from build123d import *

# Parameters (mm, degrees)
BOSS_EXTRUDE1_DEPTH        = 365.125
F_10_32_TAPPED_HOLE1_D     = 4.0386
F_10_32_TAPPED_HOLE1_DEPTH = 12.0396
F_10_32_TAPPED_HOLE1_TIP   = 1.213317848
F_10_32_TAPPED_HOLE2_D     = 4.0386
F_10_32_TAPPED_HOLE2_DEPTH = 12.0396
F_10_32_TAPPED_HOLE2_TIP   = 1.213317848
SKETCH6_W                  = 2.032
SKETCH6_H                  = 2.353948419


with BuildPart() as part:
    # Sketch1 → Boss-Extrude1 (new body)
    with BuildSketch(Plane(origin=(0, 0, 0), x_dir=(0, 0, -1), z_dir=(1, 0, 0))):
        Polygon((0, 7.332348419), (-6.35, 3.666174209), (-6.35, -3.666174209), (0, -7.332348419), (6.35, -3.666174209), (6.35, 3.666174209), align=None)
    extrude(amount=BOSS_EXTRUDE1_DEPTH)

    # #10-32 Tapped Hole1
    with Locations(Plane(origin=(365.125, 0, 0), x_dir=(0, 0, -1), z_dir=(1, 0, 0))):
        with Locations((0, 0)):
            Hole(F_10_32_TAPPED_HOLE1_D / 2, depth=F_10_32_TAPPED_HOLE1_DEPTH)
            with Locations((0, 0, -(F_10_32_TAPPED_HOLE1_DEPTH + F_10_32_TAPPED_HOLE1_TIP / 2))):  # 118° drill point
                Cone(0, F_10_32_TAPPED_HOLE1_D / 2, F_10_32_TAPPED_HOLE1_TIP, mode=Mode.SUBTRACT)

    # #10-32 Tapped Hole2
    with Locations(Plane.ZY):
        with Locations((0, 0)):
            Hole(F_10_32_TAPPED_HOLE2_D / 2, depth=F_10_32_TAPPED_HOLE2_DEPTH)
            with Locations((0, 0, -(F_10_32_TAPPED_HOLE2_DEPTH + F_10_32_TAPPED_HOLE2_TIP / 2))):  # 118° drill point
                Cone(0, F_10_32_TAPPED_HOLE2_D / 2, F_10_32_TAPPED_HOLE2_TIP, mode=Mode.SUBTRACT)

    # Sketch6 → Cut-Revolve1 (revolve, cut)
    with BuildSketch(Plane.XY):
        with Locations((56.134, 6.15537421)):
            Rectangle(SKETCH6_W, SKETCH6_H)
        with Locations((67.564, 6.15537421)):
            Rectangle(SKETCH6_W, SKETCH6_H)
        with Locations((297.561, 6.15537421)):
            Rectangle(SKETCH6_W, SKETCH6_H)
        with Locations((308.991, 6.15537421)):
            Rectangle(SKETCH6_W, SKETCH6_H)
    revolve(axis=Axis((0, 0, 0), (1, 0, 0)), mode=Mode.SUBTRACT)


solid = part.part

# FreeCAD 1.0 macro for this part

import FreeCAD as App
import Part
import Sketcher

V = App.Vector
Q = App.Units.Quantity

doc = App.newDocument("Part")
body = doc.addObject("PartDesign::Body", "Body")

# Sketch on YZ plane
sketch1 = body.newObject("Sketcher::SketchObject", "Sketch")
sketch1.AttachmentSupport = (doc.getObject("YZ_Plane"), [""])
sketch1.MapMode = "FlatFace"
sketch1.addGeometry(Part.LineSegment(V(7, 0, 0), V(4, 6, 0)), False)
sketch1.addGeometry(Part.LineSegment(V(4, 6, 0), V(-4, 6, 0)), False)
sketch1.addGeometry(Part.LineSegment(V(-4, 6, 0), V(-7, 0, 0)), False)
sketch1.addGeometry(Part.LineSegment(V(-7, 0, 0), V(-4, -6, 0)), False)
sketch1.addGeometry(Part.LineSegment(V(-4, -6, 0), V(4, -6, 0)), False)
sketch1.addGeometry(Part.LineSegment(V(4, -6, 0), V(7, 0, 0)), False)
sketch1.addConstraint(Sketcher.Constraint("Coincident", 0, 2, 1, 1))
sketch1.addConstraint(Sketcher.Constraint("Coincident", 1, 2, 2, 1))
sketch1.addConstraint(Sketcher.Constraint("Coincident", 2, 2, 3, 1))
sketch1.addConstraint(Sketcher.Constraint("Coincident", 3, 2, 4, 1))
sketch1.addConstraint(Sketcher.Constraint("Coincident", 4, 2, 5, 1))
sketch1.addConstraint(Sketcher.Constraint("Coincident", 5, 2, 0, 1))
sketch1.addConstraint(Sketcher.Constraint("Horizontal", 1))
sketch1.addConstraint(Sketcher.Constraint("Horizontal", 4))
sketch1.addConstraint(Sketcher.Constraint("Symmetric", 0, 2, 3, 2, -1, 1))
sketch1.addConstraint(Sketcher.Constraint("Symmetric", 2, 2, 5, 2, -1, 1))
sketch1.addConstraint(Sketcher.Constraint("PointOnObject", 2, 2, -1))
sketch1.addConstraint(Sketcher.Constraint("Parallel", 2, 5))
sketch1.addConstraint(Sketcher.Constraint("Vertical", 1, 2, 3, 2))
sketch1.addConstraint(Sketcher.Constraint("Angle", 0, Q("120 deg")))
sketch1.addConstraint(Sketcher.Constraint("DistanceY", 3, 2, 1, 2, Q("0.5 in")))
sketch1.addConstraint(Sketcher.Constraint("DistanceX", 1, 2, 1, 1, 7.332348))
pad1 = body.newObject("PartDesign::Pad", "Pad")
pad1.Profile = sketch1
pad1.Length = Q("14.375 in")

# Sketch on YZ plane
sketch2 = body.newObject("Sketcher::SketchObject", "Sketch001")
sketch2.AttachmentSupport = (doc.getObject("YZ_Plane"), [""])
sketch2.MapMode = "FlatFace"
sketch2.AttachmentOffset = App.Placement(V(0, 0, 14.375 * 25.4), App.Rotation())
sketch2.addGeometry(Part.Circle(V(0, 0, 0), V(0, 0, 1), 2), False)
sketch2.addConstraint(Sketcher.Constraint("Coincident", 0, 3, -1, 1))
sketch2.addConstraint(Sketcher.Constraint("Diameter", 0, Q("0.159 in")))
doc.recompute()
hole = body.newObject("PartDesign::Hole", "Hole")
hole.Profile = sketch2
hole.ThreadType = "None"
hole.Diameter = Q("0.159 in")
hole.DepthType = "Dimension"
hole.Depth = Q("0.474 in")
hole.DrillPoint = "Angled"
hole.DrillPointAngle = 118

# Sketch on YZ plane
sketch3 = body.newObject("Sketcher::SketchObject", "Sketch002")
sketch3.AttachmentSupport = (doc.getObject("YZ_Plane"), [""])
sketch3.MapMode = "FlatFace"
sketch3.addGeometry(Part.Circle(V(0, 0, 0), V(0, 0, 1), 2), False)
sketch3.addConstraint(Sketcher.Constraint("Coincident", 0, 3, -1, 1))
sketch3.addConstraint(Sketcher.Constraint("Diameter", 0, Q("0.159 in")))
doc.recompute()
hole2 = body.newObject("PartDesign::Hole", "Hole001")
hole2.Profile = sketch3
hole2.ThreadType = "None"
hole2.Diameter = Q("0.159 in")
hole2.DepthType = "Dimension"
hole2.Depth = Q("0.474 in")
hole2.DrillPoint = "Angled"
hole2.DrillPointAngle = 118
hole2.Reversed = True

# Sketch on XY plane
sketch4 = body.newObject("Sketcher::SketchObject", "Sketch003")
sketch4.AttachmentSupport = (doc.getObject("XY_Plane"), [""])
sketch4.MapMode = "FlatFace"
sketch4.addGeometry(Part.LineSegment(V(55.1, 7.3, 0), V(55.1, 5, 0)), False)
sketch4.addGeometry(Part.LineSegment(V(55.1, 5, 0), V(57.1, 5, 0)), False)
sketch4.addGeometry(Part.LineSegment(V(57.1, 5, 0), V(57.1, 7.3, 0)), False)
sketch4.addGeometry(Part.LineSegment(V(57.1, 7.3, 0), V(55.1, 7.3, 0)), False)
sketch4.addGeometry(Part.LineSegment(V(66.5, 7.3, 0), V(66.5, 5, 0)), False)
sketch4.addGeometry(Part.LineSegment(V(66.5, 5, 0), V(68.6, 5, 0)), False)
sketch4.addGeometry(Part.LineSegment(V(68.6, 5, 0), V(68.6, 7.3, 0)), False)
sketch4.addGeometry(Part.LineSegment(V(68.6, 7.3, 0), V(66.5, 7.3, 0)), False)
sketch4.addGeometry(Part.LineSegment(V(296.5, 7.3, 0), V(296.5, 5, 0)), False)
sketch4.addGeometry(Part.LineSegment(V(296.5, 5, 0), V(298.6, 5, 0)), False)
sketch4.addGeometry(Part.LineSegment(V(298.6, 5, 0), V(298.6, 7.3, 0)), False)
sketch4.addGeometry(Part.LineSegment(V(298.6, 7.3, 0), V(296.5, 7.3, 0)), False)
sketch4.addGeometry(Part.LineSegment(V(308, 7.3, 0), V(308, 5, 0)), False)
sketch4.addGeometry(Part.LineSegment(V(308, 5, 0), V(310, 5, 0)), False)
sketch4.addGeometry(Part.LineSegment(V(310, 5, 0), V(310, 7.3, 0)), False)
sketch4.addGeometry(Part.LineSegment(V(310, 7.3, 0), V(308, 7.3, 0)), False)
sketch4.addConstraint(Sketcher.Constraint("Coincident", 0, 2, 1, 1))
sketch4.addConstraint(Sketcher.Constraint("Coincident", 1, 2, 2, 1))
sketch4.addConstraint(Sketcher.Constraint("Coincident", 2, 2, 3, 1))
sketch4.addConstraint(Sketcher.Constraint("Coincident", 3, 2, 0, 1))
sketch4.addConstraint(Sketcher.Constraint("Coincident", 4, 2, 5, 1))
sketch4.addConstraint(Sketcher.Constraint("Coincident", 5, 2, 6, 1))
sketch4.addConstraint(Sketcher.Constraint("Coincident", 6, 2, 7, 1))
sketch4.addConstraint(Sketcher.Constraint("Coincident", 7, 2, 4, 1))
sketch4.addConstraint(Sketcher.Constraint("Coincident", 8, 2, 9, 1))
sketch4.addConstraint(Sketcher.Constraint("Coincident", 9, 2, 10, 1))
sketch4.addConstraint(Sketcher.Constraint("Coincident", 10, 2, 11, 1))
sketch4.addConstraint(Sketcher.Constraint("Coincident", 11, 2, 8, 1))
sketch4.addConstraint(Sketcher.Constraint("Coincident", 12, 2, 13, 1))
sketch4.addConstraint(Sketcher.Constraint("Coincident", 13, 2, 14, 1))
sketch4.addConstraint(Sketcher.Constraint("Coincident", 14, 2, 15, 1))
sketch4.addConstraint(Sketcher.Constraint("Coincident", 15, 2, 12, 1))
sketch4.addConstraint(Sketcher.Constraint("Vertical", 0))
sketch4.addConstraint(Sketcher.Constraint("Horizontal", 1))
sketch4.addConstraint(Sketcher.Constraint("Vertical", 2))
sketch4.addConstraint(Sketcher.Constraint("Horizontal", 3))
sketch4.addConstraint(Sketcher.Constraint("Vertical", 4))
sketch4.addConstraint(Sketcher.Constraint("Horizontal", 5))
sketch4.addConstraint(Sketcher.Constraint("Vertical", 6))
sketch4.addConstraint(Sketcher.Constraint("Horizontal", 7))
sketch4.addConstraint(Sketcher.Constraint("Vertical", 8))
sketch4.addConstraint(Sketcher.Constraint("Horizontal", 9))
sketch4.addConstraint(Sketcher.Constraint("Vertical", 10))
sketch4.addConstraint(Sketcher.Constraint("Horizontal", 11))
sketch4.addConstraint(Sketcher.Constraint("Vertical", 12))
sketch4.addConstraint(Sketcher.Constraint("Horizontal", 13))
sketch4.addConstraint(Sketcher.Constraint("Vertical", 14))
sketch4.addConstraint(Sketcher.Constraint("Horizontal", 15))
sketch4.addConstraint(Sketcher.Constraint("Horizontal", 1, 2, 4, 2))
sketch4.addConstraint(Sketcher.Constraint("Horizontal", 3, 2, 6, 2))
sketch4.addConstraint(Sketcher.Constraint("Horizontal", 5, 2, 8, 2))
sketch4.addConstraint(Sketcher.Constraint("Horizontal", 7, 2, 10, 2))
sketch4.addConstraint(Sketcher.Constraint("Horizontal", 9, 2, 12, 2))
sketch4.addConstraint(Sketcher.Constraint("Horizontal", 11, 2, 14, 2))
sketch4.addConstraint(Sketcher.Constraint("Equal", 3, 5))
sketch4.addConstraint(Sketcher.Constraint("Equal", 7, 9))
sketch4.addConstraint(Sketcher.Constraint("Equal", 11, 13))
sketch4.addConstraint(Sketcher.Constraint("DistanceX", 1, 1, 1, 2, Q("0.08 in")))
sketch4.addConstraint(Sketcher.Constraint("DistanceX", -1, 1, 5, 2, Q("2.7 in")))
sketch4.addConstraint(Sketcher.Constraint("DistanceX", -1, 1, 0, 2, Q("2.17 in")))
sketch4.addConstraint(Sketcher.Constraint("DistanceX", 9, 2, 12, 2, Q("0.37 in")))
sketch4.addConstraint(Sketcher.Constraint("DistanceY", -1, 1, 0, 2, Q("0.196 in")))
sketch4.addConstraint(Sketcher.Constraint("DistanceX", -1, 1, 8, 2, Q("11.675 in")))
sketch4.addConstraint(Sketcher.Constraint("DistanceY", 0, 2, 0, 1, 2.353948))
groove = body.newObject("PartDesign::Groove", "Groove")
groove.Profile = sketch4
groove.ReferenceAxis = (sketch4, ["H_Axis"])
groove.Angle = 360

doc.recompute()
